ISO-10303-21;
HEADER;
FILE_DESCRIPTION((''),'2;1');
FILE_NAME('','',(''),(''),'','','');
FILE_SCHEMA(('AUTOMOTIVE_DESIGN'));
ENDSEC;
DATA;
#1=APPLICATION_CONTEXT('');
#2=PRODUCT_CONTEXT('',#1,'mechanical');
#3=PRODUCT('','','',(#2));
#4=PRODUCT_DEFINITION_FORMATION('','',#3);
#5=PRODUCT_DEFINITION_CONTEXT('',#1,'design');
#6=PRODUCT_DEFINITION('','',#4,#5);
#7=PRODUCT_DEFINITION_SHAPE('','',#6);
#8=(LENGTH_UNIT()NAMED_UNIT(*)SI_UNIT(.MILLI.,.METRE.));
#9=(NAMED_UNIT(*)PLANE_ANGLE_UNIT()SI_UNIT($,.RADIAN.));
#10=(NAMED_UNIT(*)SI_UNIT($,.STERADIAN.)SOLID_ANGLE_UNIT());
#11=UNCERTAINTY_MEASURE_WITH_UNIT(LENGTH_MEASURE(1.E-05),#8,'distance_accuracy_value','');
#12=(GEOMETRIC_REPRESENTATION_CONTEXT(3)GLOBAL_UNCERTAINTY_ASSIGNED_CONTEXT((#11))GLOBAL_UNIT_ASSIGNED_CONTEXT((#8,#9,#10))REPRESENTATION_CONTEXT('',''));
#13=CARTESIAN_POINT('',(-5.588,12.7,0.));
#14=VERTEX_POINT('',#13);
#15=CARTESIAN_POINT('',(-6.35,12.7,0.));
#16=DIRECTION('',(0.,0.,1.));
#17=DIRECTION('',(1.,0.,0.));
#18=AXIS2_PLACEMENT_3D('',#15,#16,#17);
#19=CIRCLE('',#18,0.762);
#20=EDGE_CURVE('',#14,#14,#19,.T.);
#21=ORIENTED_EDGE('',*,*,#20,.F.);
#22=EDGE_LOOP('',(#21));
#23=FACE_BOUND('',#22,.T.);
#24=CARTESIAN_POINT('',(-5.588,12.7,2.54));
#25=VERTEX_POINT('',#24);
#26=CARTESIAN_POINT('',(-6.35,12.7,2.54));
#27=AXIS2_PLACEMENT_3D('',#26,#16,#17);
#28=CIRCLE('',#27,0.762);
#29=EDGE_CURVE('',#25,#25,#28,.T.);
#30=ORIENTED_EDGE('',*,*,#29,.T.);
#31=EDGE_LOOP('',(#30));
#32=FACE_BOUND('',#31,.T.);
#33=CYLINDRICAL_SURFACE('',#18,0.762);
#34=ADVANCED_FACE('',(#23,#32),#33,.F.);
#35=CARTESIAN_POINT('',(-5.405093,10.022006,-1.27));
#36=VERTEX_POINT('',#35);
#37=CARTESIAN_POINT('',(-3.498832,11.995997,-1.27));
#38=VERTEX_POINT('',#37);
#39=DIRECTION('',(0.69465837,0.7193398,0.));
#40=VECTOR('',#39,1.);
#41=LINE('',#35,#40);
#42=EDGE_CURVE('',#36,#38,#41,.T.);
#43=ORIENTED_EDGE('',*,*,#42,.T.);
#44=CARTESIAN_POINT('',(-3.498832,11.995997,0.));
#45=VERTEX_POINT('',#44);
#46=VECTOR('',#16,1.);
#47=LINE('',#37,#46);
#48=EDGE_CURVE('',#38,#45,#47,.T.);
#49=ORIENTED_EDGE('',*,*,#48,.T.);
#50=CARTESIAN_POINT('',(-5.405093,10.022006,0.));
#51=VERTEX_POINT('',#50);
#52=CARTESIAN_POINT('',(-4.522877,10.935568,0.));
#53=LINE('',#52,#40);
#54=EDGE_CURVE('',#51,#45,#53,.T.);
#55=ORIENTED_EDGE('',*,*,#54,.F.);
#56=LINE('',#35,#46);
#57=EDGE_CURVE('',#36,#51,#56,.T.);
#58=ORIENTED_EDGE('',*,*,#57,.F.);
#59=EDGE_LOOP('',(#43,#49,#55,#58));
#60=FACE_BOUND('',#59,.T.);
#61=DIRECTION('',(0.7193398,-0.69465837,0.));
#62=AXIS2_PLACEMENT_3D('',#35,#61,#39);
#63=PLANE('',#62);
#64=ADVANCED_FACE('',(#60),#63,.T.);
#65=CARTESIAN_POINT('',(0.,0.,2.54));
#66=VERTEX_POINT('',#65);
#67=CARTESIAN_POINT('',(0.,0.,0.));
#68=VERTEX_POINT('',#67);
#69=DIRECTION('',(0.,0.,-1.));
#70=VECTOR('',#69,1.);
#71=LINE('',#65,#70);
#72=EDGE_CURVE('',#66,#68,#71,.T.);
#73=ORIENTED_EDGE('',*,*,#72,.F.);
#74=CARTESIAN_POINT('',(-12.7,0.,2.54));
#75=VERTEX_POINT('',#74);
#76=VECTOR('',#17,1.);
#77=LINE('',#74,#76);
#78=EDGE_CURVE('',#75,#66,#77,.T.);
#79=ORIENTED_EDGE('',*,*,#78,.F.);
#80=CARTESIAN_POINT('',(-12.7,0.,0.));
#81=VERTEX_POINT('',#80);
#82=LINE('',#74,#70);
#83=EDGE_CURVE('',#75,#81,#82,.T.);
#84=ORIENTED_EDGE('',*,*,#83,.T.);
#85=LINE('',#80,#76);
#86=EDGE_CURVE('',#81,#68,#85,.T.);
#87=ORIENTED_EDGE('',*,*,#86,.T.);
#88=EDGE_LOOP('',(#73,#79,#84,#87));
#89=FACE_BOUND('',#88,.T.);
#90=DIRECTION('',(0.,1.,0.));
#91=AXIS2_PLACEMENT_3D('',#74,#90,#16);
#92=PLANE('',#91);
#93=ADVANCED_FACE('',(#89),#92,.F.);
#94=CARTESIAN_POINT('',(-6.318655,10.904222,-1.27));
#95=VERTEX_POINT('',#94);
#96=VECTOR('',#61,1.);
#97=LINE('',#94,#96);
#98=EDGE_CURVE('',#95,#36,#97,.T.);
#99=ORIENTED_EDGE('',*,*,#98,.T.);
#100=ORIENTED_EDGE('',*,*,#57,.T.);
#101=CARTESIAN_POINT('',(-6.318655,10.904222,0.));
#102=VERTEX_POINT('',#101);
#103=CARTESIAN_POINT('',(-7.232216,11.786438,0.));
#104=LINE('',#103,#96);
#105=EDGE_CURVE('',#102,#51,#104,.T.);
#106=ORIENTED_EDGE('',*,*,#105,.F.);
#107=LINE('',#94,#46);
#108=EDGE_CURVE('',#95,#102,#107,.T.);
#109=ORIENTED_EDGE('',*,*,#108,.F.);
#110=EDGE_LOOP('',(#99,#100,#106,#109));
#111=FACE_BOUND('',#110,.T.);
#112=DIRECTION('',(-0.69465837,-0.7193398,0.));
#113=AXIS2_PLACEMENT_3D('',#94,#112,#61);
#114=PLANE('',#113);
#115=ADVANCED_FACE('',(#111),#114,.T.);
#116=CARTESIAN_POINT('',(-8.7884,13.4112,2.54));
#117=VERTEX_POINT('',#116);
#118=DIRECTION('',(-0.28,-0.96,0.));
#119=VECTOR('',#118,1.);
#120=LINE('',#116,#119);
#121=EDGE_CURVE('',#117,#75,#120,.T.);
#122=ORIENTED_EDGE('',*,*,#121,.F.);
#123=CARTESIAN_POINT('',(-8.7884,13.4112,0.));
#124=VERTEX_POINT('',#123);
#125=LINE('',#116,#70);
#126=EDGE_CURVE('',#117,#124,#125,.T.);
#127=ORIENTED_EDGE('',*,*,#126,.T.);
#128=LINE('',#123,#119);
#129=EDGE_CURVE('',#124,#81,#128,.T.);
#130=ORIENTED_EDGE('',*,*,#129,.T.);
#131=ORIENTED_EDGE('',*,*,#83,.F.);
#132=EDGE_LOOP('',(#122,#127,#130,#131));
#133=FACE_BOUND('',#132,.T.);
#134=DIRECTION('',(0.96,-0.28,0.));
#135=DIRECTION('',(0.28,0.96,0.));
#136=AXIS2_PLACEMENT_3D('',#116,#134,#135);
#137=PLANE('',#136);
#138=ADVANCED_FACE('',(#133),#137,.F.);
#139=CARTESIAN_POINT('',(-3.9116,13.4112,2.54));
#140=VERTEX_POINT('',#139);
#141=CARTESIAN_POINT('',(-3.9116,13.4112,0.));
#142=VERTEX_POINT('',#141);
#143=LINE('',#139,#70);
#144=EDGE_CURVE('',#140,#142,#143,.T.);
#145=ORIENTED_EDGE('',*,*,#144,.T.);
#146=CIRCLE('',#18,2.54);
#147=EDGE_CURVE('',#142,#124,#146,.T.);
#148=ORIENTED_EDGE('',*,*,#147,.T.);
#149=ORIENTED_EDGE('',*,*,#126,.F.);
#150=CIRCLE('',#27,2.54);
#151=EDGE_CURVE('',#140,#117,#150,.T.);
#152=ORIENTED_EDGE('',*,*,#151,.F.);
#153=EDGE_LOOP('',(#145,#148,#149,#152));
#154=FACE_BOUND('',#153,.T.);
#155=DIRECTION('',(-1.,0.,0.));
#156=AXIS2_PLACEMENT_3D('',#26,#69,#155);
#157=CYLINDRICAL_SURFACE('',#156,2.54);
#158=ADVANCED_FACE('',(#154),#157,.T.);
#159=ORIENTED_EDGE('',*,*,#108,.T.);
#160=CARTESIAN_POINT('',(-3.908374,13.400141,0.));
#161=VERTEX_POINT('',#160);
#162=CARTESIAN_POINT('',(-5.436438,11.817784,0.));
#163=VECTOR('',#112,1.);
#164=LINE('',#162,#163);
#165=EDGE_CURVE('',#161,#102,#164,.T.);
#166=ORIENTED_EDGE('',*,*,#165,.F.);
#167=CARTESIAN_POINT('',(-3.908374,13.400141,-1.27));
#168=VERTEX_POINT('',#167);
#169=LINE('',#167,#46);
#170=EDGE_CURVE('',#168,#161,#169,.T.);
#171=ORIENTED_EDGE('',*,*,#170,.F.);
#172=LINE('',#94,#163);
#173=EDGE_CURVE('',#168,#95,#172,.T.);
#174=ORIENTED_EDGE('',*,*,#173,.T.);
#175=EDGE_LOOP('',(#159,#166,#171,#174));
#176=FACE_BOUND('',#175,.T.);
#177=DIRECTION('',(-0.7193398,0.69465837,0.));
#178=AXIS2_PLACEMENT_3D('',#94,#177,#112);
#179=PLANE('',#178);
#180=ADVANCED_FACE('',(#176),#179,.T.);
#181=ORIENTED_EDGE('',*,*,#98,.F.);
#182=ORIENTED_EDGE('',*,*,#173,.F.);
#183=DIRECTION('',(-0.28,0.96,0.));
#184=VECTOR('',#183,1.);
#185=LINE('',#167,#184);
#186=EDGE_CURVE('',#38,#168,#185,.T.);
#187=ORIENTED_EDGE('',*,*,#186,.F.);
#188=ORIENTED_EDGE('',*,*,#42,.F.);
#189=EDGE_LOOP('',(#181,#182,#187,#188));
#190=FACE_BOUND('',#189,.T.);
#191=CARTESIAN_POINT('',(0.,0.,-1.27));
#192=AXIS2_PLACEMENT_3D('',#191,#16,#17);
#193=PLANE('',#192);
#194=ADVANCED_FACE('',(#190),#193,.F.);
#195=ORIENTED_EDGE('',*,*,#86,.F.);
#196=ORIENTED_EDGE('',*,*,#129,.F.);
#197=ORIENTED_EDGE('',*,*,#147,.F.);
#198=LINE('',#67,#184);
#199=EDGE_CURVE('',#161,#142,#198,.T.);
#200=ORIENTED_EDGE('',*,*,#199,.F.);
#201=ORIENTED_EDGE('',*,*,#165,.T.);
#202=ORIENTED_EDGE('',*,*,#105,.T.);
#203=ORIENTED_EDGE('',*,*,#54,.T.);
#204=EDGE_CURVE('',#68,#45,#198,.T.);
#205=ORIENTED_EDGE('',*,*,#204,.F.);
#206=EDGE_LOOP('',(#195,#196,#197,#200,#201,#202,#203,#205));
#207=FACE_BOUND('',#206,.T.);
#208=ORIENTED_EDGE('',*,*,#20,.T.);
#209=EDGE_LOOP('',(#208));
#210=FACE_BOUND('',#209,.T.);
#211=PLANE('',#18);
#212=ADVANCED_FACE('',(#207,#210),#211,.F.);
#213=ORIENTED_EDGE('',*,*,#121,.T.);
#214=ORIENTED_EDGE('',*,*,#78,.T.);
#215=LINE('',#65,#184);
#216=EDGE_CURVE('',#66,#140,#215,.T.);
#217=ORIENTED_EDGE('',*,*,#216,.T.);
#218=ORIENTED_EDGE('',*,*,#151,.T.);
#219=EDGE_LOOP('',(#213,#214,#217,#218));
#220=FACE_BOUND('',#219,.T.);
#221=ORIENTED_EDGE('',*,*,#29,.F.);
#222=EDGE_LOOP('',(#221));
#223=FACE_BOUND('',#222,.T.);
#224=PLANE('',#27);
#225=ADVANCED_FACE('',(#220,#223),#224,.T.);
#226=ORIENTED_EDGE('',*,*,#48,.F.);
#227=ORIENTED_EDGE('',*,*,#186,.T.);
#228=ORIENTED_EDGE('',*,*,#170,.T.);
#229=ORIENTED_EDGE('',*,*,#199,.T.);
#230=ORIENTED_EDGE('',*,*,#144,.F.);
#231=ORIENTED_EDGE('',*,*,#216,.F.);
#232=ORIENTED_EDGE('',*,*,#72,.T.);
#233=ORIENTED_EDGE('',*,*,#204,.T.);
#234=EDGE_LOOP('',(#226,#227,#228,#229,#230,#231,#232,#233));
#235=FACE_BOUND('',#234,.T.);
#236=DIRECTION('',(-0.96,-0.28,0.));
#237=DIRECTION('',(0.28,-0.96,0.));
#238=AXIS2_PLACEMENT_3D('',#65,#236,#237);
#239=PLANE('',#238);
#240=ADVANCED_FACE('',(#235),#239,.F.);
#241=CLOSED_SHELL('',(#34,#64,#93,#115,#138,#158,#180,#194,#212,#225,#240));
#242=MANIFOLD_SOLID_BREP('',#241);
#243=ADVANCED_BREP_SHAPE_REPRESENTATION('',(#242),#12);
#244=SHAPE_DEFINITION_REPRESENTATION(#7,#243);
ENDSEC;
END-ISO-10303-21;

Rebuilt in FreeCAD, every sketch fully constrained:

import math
import FreeCAD as App
import Part
import Sketcher

V = App.Vector
Q = App.Units.Quantity


def add_polygon(sketch, points):
    """Adds a closed chain of lines whose ends are joined by coincident constraints."""
    first, n = sketch.GeometryCount, len(points)
    for a, b in zip(points, points[1:] + points[:1]):
        sketch.addGeometry(Part.LineSegment(App.Vector(*a, 0), App.Vector(*b, 0)), False)
    for i in range(n):
        sketch.addConstraint(Sketcher.Constraint("Coincident", first + i, 2, first + (i + 1) % n, 1))

doc = App.newDocument("Part")
body = doc.addObject("PartDesign::Body", "Body")

# Sketch on XY plane
sketch1 = doc.addObject("Sketcher::SketchObject", "Sketch")
body.addObject(sketch1)
sketch1.AttachmentSupport = (doc.XY_Plane, [""])
sketch1.MapMode = "FlatFace"
sketch1.addGeometry([
    Part.LineSegment(V(-8.7884, 13.4112, 0), V(-12.7, 0, 0)),
    Part.LineSegment(V(-12.7, 0, 0), V(0, 0, 0)),
    Part.LineSegment(V(0, 0, 0), V(-3.9116, 13.4112, 0)),
    Part.ArcOfCircle(Part.Circle(V(-6.35, 12.7, 0), V(0, 0, 1), 2.54), math.radians(16.260205), math.radians(163.739795)),
], False)
sketch1.addConstraint([
    Sketcher.Constraint("Coincident", 0, 2, 1, 1),
    Sketcher.Constraint("Coincident", 1, 2, 2, 1),
    Sketcher.Constraint("Tangent", 2, 2, 3, 1),
    Sketcher.Constraint("Tangent", 3, 2, 0, 1),
    Sketcher.Constraint("Horizontal", 1),
    Sketcher.Constraint("Coincident", 1, 2, -1, 1),
    Sketcher.Constraint("Horizontal", 2, 2, 3, 2),
    Sketcher.Constraint("Radius", 3, Q("0.1 in")),
    Sketcher.Constraint("DistanceX", 1, 1, 1, 2, Q("0.5 in")),
    Sketcher.Constraint("DistanceY", -1, 1, 3, 3, Q("0.5 in")),
])
pad1 = doc.addObject("PartDesign::Pad", "Pad")
body.addObject(pad1)
pad1.Profile = sketch1
pad1.Length = Q("0.1 in")

# Sketch on XY plane
sketch2 = doc.addObject("Sketcher::SketchObject", "Sketch001")
body.addObject(sketch2)
sketch2.AttachmentSupport = (doc.XY_Plane, [""])
sketch2.MapMode = "FlatFace"
sketch2.AttachmentOffset = App.Placement(V(0, 0, 0.1 * 25.4), App.Rotation())
add_polygon(sketch2, [(-3.908374, 13.400141), (-6.318655, 10.904222), (-5.405093, 10.022006), (-3.498832, 11.995997)])  # lines 0-3
sketch2.addConstraint([
    Sketcher.Constraint("Perpendicular", 0, 1),
    Sketcher.Constraint("Perpendicular", 1, 2),
    Sketcher.Constraint("Angle", 0, Q("-134 deg")),
    Sketcher.Constraint("Distance", 1, Q("0.05 in")),
    Sketcher.Constraint("DistanceY", -1, 1, 0, 2, Q("0.4293001 in")),
    Sketcher.Constraint("Distance", 2, Q("2.74417 mm")),
    Sketcher.Constraint("Distance", 3, Q("1.46265 mm")),
    Sketcher.Constraint("DistanceX", 0, 2, -1, 1, Q("6.318655 mm")),
])
pad2 = doc.addObject("PartDesign::Pad", "Pad001")
body.addObject(pad2)
pad2.Profile = sketch2
pad2.Length = Q("0.15 in")
pad2.Reversed = True

# Sketch on XY plane
sketch3 = doc.addObject("Sketcher::SketchObject", "Sketch002")
body.addObject(sketch3)
sketch3.AttachmentSupport = (doc.XY_Plane, [""])
sketch3.MapMode = "FlatFace"
sketch3.AttachmentOffset = App.Placement(V(0, 0, 0.1 * 25.4), App.Rotation())
sketch3.addGeometry(Part.Circle(V(-6.35, 12.7, 0), V(0, 0, 1), 0.762), False)
sketch3.addConstraint([
    Sketcher.Constraint("Diameter", 0, Q("0.06 in")),
    Sketcher.Constraint("DistanceY", -1, 1, 0, 3, Q("0.5 in")),
    Sketcher.Constraint("DistanceX", 0, 3, -1, 1, Q("0.25 in")),
])
pocket1 = doc.addObject("PartDesign::Pocket", "Pocket")
body.addObject(pocket1)
pocket1.Profile = sketch3
pocket1.Length = Q("0.1 in")

doc.recompute()
